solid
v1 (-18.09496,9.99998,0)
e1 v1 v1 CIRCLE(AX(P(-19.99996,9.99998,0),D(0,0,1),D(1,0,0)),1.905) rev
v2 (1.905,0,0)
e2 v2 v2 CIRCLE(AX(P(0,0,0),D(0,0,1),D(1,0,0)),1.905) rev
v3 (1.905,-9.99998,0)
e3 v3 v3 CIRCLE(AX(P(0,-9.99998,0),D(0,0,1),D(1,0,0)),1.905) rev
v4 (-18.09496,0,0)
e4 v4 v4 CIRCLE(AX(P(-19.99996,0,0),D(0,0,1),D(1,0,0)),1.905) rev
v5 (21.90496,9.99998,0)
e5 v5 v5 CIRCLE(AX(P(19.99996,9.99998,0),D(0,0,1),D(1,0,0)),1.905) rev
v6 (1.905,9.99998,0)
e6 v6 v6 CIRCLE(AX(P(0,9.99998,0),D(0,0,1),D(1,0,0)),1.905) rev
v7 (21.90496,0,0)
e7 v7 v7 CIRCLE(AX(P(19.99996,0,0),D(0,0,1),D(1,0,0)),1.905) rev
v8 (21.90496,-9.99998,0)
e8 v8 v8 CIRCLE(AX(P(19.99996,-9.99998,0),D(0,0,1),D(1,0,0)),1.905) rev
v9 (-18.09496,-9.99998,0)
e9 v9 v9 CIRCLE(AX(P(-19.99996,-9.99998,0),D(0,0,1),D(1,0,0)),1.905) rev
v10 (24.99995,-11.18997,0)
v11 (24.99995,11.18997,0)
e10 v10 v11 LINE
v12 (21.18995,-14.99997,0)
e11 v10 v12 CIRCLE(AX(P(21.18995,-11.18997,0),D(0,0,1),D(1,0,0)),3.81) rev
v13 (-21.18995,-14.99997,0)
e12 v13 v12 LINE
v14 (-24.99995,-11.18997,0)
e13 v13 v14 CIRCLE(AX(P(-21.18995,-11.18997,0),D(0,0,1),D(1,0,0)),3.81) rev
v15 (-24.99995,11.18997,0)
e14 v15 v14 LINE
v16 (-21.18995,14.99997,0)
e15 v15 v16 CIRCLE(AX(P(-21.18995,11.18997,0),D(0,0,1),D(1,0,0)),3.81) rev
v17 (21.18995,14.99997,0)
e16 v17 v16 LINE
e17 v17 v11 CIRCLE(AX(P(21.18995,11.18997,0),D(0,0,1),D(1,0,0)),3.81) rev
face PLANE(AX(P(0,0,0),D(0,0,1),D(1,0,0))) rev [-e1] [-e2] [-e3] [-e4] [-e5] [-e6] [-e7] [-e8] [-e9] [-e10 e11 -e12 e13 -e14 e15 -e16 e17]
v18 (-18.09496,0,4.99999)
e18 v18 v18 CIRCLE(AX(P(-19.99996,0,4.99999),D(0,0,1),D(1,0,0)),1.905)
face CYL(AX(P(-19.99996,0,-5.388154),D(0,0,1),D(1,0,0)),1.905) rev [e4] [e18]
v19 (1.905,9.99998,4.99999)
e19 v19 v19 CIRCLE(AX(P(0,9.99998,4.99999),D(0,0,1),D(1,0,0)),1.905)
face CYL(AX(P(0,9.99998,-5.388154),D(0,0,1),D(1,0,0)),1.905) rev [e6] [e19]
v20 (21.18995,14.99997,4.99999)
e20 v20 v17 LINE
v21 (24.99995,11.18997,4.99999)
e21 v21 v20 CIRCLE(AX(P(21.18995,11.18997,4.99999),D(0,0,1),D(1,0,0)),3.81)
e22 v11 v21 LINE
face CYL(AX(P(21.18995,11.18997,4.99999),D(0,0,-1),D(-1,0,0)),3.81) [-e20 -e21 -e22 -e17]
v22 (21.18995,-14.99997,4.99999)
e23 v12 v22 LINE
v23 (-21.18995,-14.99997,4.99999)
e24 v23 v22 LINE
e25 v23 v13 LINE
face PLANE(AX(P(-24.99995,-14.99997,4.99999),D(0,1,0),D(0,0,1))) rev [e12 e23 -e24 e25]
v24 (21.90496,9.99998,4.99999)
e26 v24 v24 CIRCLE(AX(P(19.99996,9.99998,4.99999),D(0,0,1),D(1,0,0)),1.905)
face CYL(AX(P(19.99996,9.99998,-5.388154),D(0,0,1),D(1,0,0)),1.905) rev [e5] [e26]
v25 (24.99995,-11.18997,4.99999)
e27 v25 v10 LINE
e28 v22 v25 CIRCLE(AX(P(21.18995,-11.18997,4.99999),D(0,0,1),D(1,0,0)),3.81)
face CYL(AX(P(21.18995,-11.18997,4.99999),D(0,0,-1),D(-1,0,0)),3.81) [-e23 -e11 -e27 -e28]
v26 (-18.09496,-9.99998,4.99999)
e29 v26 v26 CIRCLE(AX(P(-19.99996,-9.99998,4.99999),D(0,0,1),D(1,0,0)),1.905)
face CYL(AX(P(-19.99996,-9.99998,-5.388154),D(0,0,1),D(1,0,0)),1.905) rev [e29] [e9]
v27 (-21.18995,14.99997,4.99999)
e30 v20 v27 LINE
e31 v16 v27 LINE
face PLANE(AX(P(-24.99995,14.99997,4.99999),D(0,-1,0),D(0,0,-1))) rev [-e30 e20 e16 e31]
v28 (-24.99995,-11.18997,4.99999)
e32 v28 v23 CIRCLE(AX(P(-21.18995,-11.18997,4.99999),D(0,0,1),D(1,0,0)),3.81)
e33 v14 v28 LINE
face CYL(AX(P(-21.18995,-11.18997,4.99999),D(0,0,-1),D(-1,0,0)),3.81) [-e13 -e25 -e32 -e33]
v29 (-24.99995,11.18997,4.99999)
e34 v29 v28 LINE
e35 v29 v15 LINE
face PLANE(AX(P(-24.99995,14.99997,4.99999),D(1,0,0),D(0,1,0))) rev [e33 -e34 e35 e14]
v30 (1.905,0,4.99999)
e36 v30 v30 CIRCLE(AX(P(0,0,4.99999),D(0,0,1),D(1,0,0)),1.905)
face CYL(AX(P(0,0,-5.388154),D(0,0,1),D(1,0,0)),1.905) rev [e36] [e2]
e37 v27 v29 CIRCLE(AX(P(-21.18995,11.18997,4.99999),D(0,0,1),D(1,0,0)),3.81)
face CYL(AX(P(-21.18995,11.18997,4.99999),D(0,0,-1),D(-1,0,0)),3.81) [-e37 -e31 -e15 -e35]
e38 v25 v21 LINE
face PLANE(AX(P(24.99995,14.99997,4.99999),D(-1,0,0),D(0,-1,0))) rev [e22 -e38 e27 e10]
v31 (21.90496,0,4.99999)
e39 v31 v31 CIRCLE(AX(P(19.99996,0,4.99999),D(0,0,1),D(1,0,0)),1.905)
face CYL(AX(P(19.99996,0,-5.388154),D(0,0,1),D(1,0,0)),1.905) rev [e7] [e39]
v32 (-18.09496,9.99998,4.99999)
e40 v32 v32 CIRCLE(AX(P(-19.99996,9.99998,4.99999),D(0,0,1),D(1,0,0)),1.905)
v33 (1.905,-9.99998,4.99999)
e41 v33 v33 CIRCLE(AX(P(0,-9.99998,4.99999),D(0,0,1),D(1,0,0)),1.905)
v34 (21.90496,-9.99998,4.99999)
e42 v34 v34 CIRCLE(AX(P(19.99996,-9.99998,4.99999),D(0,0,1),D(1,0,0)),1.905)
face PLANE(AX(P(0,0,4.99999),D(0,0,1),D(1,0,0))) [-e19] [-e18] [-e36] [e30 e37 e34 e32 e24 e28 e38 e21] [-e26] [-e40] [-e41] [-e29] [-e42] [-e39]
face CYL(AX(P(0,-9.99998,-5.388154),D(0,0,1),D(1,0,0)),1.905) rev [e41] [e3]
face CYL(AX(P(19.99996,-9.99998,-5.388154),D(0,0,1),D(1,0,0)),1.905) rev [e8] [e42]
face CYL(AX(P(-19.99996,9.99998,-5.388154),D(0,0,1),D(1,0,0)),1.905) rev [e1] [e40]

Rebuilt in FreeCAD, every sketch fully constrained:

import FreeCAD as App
import Part
import Sketcher

V = App.Vector
Q = App.Units.Quantity


def edges_at(feature, points):
    """Names of the edges that pass closest to the given points."""
    edges = feature.Shape.Edges
    near = lambda p: min(range(len(edges)), key=lambda i: edges[i].distToShape(Part.Vertex(*p))[0])
    return sorted({f"Edge{near(p) + 1}" for p in points})


def add_polygon(sketch, points):
    """Adds a closed chain of lines whose ends are joined by coincident constraints."""
    first, n = sketch.GeometryCount, len(points)
    for a, b in zip(points, points[1:] + points[:1]):
        sketch.addGeometry(Part.LineSegment(App.Vector(*a, 0), App.Vector(*b, 0)), False)
    for i in range(n):
        sketch.addConstraint(Sketcher.Constraint("Coincident", first + i, 2, first + (i + 1) % n, 1))

doc = App.newDocument("Part")
params = doc.addObject("Spreadsheet::Sheet", "Params")
for row, (alias, value) in enumerate([
    ("pad1_length", "4.99999 mm"),
    ("sketch2_diameter", "0.15 in"),
    ("pocket1_length", "4.99999 mm"),
    ("linearpattern_pitch", "0.3937 in"),
    ("linearpattern2_pitch", "0.3937 in"),
    ("linearpattern3_pitch", "0.7874 in"),
    ("sketch3_diameter", "0.15 in"),
    ("pocket2_length", "4.99999 mm"),
    ("sketch4_diameter", "0.15 in"),
    ("pocket3_length", "4.99999 mm"),
    ("linearpattern4_pitch", "0.7874 in"),
    ("sketch5_diameter", "0.15 in"),
    ("pocket4_length", "4.99999 mm"),
    ("sketch6_diameter", "0.15 in"),
    ("pocket5_length", "4.99999 mm"),
    ("fillet_radius", "0.15 in"),
], start=1):
    params.set(f"A{row}", alias)
    params.set(f"B{row}", "=" + value)
    params.setAlias(f"B{row}", alias)

body = doc.addObject("PartDesign::Body", "Body")

# Sketch on XY plane
sketch1 = body.newObject("Sketcher::SketchObject", "Sketch")
sketch1.AttachmentSupport = (doc.getObject("XY_Plane"), [""])
sketch1.MapMode = "FlatFace"
add_polygon(sketch1, [(-24.99995, 14.99997), (-24.99995, -14.99997), (24.99995, -14.99997), (24.99995, 14.99997)])  # lines 0-3
sketch1.addConstraint(Sketcher.Constraint("Vertical", 0))
sketch1.addConstraint(Sketcher.Constraint("Horizontal", 1))
sketch1.addConstraint(Sketcher.Constraint("Vertical", 2))
sketch1.addConstraint(Sketcher.Constraint("Horizontal", 3))
sketch1.addConstraint(Sketcher.Constraint("Symmetric", 0, 2, 2, 2, -1, 1))
sketch1.addConstraint(Sketcher.Constraint("DistanceX", 1, 1, 1, 2, Q("1.9685 in")))
sketch1.addConstraint(Sketcher.Constraint("DistanceY", 0, 2, 0, 1, Q("1.1811 in")))
pad1 = body.newObject("PartDesign::Pad", "Pad")
pad1.Profile = sketch1
pad1.setExpression("Length", "Params.pad1_length")

# Sketch on XY plane
sketch2 = body.newObject("Sketcher::SketchObject", "Sketch001")
sketch2.AttachmentSupport = (doc.getObject("XY_Plane"), [""])
sketch2.MapMode = "FlatFace"
sketch2.AttachmentOffset = App.Placement(V(0, 0, 4.99999), App.Rotation())
sketch2.addGeometry(Part.Circle(V(0, 0, 0), V(0, 0, 1), 1.9), False)
sketch2.addConstraint(Sketcher.Constraint("Coincident", 0, 3, -1, 1))
sketch2.addConstraint(Sketcher.Constraint("Diameter", 0, Q("0.15 in")))
sketch2.setExpression("Constraints[1]", "Params.sketch2_diameter")
pocket1 = body.newObject("PartDesign::Pocket", "Pocket")
pocket1.Profile = sketch2
pocket1.setExpression("Length", "Params.pocket1_length")
doc.recompute()

linearpattern = body.newObject("PartDesign::LinearPattern", "LinearPattern")
linearpattern.Originals = [pocket1]
linearpattern.Direction = (doc.getObject("Y_Axis"), [""])
linearpattern.Mode = "offset"
linearpattern.setExpression("Offset", "Params.linearpattern_pitch")
linearpattern.Occurrences = 2
body.Tip = linearpattern
doc.recompute()

linearpattern2 = body.newObject("PartDesign::LinearPattern", "LinearPattern001")
linearpattern2.Originals = [pocket1]
linearpattern2.Direction = (doc.getObject("Y_Axis"), [""])
linearpattern2.Mode = "offset"
linearpattern2.setExpression("Offset", "Params.linearpattern2_pitch")
linearpattern2.Occurrences = 2
linearpattern2.Reversed = True
body.Tip = linearpattern2
doc.recompute()

linearpattern3 = body.newObject("PartDesign::LinearPattern", "LinearPattern002")
linearpattern3.Originals = [pocket1]
linearpattern3.Direction = (doc.getObject("X_Axis"), [""])
linearpattern3.Mode = "offset"
linearpattern3.setExpression("Offset", "Params.linearpattern3_pitch")
linearpattern3.Occurrences = 2
linearpattern3.Reversed = True
body.Tip = linearpattern3

# Sketch on XY plane
sketch3 = body.newObject("Sketcher::SketchObject", "Sketch002")
sketch3.AttachmentSupport = (doc.getObject("XY_Plane"), [""])
sketch3.MapMode = "FlatFace"
sketch3.AttachmentOffset = App.Placement(V(0, 0, 4.99999), App.Rotation())
sketch3.addGeometry(Part.Circle(V(-20, 10, 0), V(0, 0, 1), 1.9), False)
sketch3.addConstraint(Sketcher.Constraint("Diameter", 0, Q("0.15 in")))
sketch3.addConstraint(Sketcher.Constraint("DistanceX", 0, 3, -1, 1, Q("0.7874 in")))
sketch3.addConstraint(Sketcher.Constraint("DistanceY", -1, 1, 0, 3, Q("0.3937 in")))
sketch3.setExpression("Constraints[0]", "Params.sketch3_diameter")
pocket2 = body.newObject("PartDesign::Pocket", "Pocket001")
pocket2.Profile = sketch3
pocket2.setExpression("Length", "Params.pocket2_length")

# Sketch on XY plane
sketch4 = body.newObject("Sketcher::SketchObject", "Sketch003")
sketch4.AttachmentSupport = (doc.getObject("XY_Plane"), [""])
sketch4.MapMode = "FlatFace"
sketch4.AttachmentOffset = App.Placement(V(0, 0, 4.99999), App.Rotation())
sketch4.addGeometry(Part.Circle(V(-20, -10, 0), V(0, 0, 1), 1.9), False)
sketch4.addConstraint(Sketcher.Constraint("Diameter", 0, Q("0.15 in")))
sketch4.addConstraint(Sketcher.Constraint("DistanceX", 0, 3, -1, 1, Q("0.7874 in")))
sketch4.addConstraint(Sketcher.Constraint("DistanceY", 0, 3, -1, 1, Q("0.3937 in")))
sketch4.setExpression("Constraints[0]", "Params.sketch4_diameter")
pocket3 = body.newObject("PartDesign::Pocket", "Pocket002")
pocket3.Profile = sketch4
pocket3.setExpression("Length", "Params.pocket3_length")
doc.recompute()

linearpattern4 = body.newObject("PartDesign::LinearPattern", "LinearPattern003")
linearpattern4.Originals = [pocket1]
linearpattern4.Direction = (doc.getObject("X_Axis"), [""])
linearpattern4.Mode = "offset"
linearpattern4.setExpression("Offset", "Params.linearpattern4_pitch")
linearpattern4.Occurrences = 2
body.Tip = linearpattern4

# Sketch on XY plane
sketch5 = body.newObject("Sketcher::SketchObject", "Sketch004")
sketch5.AttachmentSupport = (doc.getObject("XY_Plane"), [""])
sketch5.MapMode = "FlatFace"
sketch5.AttachmentOffset = App.Placement(V(0, 0, 4.99999), App.Rotation())
sketch5.addGeometry(Part.Circle(V(20, 10, 0), V(0, 0, 1), 1.9), False)
sketch5.addConstraint(Sketcher.Constraint("Diameter", 0, Q("0.15 in")))
sketch5.addConstraint(Sketcher.Constraint("DistanceX", -1, 1, 0, 3, Q("0.7874 in")))
sketch5.addConstraint(Sketcher.Constraint("DistanceY", -1, 1, 0, 3, Q("0.3937 in")))
sketch5.setExpression("Constraints[0]", "Params.sketch5_diameter")
pocket4 = body.newObject("PartDesign::Pocket", "Pocket003")
pocket4.Profile = sketch5
pocket4.setExpression("Length", "Params.pocket4_length")

# Sketch on XY plane
sketch6 = body.newObject("Sketcher::SketchObject", "Sketch005")
sketch6.AttachmentSupport = (doc.getObject("XY_Plane"), [""])
sketch6.MapMode = "FlatFace"
sketch6.AttachmentOffset = App.Placement(V(0, 0, 4.99999), App.Rotation())
sketch6.addGeometry(Part.Circle(V(20, -10, 0), V(0, 0, 1), 1.9), False)
sketch6.addConstraint(Sketcher.Constraint("Diameter", 0, Q("0.15 in")))
sketch6.addConstraint(Sketcher.Constraint("DistanceX", -1, 1, 0, 3, Q("0.7874 in")))
sketch6.addConstraint(Sketcher.Constraint("DistanceY", 0, 3, -1, 1, Q("0.3937 in")))
sketch6.setExpression("Constraints[0]", "Params.sketch6_diameter")
pocket5 = body.newObject("PartDesign::Pocket", "Pocket004")
pocket5.Profile = sketch6
pocket5.setExpression("Length", "Params.pocket5_length")
doc.recompute()

fillet = body.newObject("PartDesign::Fillet", "Fillet")
fillet.Base = (pocket5, edges_at(pocket5, [
    (25, -15, 2.5),
    (-25, -15, 2.5),
    (-25, 15, 2.5),
    (25, 15, 2.5),
]))
fillet.setExpression("Radius", "Params.fillet_radius")

doc.recompute()
